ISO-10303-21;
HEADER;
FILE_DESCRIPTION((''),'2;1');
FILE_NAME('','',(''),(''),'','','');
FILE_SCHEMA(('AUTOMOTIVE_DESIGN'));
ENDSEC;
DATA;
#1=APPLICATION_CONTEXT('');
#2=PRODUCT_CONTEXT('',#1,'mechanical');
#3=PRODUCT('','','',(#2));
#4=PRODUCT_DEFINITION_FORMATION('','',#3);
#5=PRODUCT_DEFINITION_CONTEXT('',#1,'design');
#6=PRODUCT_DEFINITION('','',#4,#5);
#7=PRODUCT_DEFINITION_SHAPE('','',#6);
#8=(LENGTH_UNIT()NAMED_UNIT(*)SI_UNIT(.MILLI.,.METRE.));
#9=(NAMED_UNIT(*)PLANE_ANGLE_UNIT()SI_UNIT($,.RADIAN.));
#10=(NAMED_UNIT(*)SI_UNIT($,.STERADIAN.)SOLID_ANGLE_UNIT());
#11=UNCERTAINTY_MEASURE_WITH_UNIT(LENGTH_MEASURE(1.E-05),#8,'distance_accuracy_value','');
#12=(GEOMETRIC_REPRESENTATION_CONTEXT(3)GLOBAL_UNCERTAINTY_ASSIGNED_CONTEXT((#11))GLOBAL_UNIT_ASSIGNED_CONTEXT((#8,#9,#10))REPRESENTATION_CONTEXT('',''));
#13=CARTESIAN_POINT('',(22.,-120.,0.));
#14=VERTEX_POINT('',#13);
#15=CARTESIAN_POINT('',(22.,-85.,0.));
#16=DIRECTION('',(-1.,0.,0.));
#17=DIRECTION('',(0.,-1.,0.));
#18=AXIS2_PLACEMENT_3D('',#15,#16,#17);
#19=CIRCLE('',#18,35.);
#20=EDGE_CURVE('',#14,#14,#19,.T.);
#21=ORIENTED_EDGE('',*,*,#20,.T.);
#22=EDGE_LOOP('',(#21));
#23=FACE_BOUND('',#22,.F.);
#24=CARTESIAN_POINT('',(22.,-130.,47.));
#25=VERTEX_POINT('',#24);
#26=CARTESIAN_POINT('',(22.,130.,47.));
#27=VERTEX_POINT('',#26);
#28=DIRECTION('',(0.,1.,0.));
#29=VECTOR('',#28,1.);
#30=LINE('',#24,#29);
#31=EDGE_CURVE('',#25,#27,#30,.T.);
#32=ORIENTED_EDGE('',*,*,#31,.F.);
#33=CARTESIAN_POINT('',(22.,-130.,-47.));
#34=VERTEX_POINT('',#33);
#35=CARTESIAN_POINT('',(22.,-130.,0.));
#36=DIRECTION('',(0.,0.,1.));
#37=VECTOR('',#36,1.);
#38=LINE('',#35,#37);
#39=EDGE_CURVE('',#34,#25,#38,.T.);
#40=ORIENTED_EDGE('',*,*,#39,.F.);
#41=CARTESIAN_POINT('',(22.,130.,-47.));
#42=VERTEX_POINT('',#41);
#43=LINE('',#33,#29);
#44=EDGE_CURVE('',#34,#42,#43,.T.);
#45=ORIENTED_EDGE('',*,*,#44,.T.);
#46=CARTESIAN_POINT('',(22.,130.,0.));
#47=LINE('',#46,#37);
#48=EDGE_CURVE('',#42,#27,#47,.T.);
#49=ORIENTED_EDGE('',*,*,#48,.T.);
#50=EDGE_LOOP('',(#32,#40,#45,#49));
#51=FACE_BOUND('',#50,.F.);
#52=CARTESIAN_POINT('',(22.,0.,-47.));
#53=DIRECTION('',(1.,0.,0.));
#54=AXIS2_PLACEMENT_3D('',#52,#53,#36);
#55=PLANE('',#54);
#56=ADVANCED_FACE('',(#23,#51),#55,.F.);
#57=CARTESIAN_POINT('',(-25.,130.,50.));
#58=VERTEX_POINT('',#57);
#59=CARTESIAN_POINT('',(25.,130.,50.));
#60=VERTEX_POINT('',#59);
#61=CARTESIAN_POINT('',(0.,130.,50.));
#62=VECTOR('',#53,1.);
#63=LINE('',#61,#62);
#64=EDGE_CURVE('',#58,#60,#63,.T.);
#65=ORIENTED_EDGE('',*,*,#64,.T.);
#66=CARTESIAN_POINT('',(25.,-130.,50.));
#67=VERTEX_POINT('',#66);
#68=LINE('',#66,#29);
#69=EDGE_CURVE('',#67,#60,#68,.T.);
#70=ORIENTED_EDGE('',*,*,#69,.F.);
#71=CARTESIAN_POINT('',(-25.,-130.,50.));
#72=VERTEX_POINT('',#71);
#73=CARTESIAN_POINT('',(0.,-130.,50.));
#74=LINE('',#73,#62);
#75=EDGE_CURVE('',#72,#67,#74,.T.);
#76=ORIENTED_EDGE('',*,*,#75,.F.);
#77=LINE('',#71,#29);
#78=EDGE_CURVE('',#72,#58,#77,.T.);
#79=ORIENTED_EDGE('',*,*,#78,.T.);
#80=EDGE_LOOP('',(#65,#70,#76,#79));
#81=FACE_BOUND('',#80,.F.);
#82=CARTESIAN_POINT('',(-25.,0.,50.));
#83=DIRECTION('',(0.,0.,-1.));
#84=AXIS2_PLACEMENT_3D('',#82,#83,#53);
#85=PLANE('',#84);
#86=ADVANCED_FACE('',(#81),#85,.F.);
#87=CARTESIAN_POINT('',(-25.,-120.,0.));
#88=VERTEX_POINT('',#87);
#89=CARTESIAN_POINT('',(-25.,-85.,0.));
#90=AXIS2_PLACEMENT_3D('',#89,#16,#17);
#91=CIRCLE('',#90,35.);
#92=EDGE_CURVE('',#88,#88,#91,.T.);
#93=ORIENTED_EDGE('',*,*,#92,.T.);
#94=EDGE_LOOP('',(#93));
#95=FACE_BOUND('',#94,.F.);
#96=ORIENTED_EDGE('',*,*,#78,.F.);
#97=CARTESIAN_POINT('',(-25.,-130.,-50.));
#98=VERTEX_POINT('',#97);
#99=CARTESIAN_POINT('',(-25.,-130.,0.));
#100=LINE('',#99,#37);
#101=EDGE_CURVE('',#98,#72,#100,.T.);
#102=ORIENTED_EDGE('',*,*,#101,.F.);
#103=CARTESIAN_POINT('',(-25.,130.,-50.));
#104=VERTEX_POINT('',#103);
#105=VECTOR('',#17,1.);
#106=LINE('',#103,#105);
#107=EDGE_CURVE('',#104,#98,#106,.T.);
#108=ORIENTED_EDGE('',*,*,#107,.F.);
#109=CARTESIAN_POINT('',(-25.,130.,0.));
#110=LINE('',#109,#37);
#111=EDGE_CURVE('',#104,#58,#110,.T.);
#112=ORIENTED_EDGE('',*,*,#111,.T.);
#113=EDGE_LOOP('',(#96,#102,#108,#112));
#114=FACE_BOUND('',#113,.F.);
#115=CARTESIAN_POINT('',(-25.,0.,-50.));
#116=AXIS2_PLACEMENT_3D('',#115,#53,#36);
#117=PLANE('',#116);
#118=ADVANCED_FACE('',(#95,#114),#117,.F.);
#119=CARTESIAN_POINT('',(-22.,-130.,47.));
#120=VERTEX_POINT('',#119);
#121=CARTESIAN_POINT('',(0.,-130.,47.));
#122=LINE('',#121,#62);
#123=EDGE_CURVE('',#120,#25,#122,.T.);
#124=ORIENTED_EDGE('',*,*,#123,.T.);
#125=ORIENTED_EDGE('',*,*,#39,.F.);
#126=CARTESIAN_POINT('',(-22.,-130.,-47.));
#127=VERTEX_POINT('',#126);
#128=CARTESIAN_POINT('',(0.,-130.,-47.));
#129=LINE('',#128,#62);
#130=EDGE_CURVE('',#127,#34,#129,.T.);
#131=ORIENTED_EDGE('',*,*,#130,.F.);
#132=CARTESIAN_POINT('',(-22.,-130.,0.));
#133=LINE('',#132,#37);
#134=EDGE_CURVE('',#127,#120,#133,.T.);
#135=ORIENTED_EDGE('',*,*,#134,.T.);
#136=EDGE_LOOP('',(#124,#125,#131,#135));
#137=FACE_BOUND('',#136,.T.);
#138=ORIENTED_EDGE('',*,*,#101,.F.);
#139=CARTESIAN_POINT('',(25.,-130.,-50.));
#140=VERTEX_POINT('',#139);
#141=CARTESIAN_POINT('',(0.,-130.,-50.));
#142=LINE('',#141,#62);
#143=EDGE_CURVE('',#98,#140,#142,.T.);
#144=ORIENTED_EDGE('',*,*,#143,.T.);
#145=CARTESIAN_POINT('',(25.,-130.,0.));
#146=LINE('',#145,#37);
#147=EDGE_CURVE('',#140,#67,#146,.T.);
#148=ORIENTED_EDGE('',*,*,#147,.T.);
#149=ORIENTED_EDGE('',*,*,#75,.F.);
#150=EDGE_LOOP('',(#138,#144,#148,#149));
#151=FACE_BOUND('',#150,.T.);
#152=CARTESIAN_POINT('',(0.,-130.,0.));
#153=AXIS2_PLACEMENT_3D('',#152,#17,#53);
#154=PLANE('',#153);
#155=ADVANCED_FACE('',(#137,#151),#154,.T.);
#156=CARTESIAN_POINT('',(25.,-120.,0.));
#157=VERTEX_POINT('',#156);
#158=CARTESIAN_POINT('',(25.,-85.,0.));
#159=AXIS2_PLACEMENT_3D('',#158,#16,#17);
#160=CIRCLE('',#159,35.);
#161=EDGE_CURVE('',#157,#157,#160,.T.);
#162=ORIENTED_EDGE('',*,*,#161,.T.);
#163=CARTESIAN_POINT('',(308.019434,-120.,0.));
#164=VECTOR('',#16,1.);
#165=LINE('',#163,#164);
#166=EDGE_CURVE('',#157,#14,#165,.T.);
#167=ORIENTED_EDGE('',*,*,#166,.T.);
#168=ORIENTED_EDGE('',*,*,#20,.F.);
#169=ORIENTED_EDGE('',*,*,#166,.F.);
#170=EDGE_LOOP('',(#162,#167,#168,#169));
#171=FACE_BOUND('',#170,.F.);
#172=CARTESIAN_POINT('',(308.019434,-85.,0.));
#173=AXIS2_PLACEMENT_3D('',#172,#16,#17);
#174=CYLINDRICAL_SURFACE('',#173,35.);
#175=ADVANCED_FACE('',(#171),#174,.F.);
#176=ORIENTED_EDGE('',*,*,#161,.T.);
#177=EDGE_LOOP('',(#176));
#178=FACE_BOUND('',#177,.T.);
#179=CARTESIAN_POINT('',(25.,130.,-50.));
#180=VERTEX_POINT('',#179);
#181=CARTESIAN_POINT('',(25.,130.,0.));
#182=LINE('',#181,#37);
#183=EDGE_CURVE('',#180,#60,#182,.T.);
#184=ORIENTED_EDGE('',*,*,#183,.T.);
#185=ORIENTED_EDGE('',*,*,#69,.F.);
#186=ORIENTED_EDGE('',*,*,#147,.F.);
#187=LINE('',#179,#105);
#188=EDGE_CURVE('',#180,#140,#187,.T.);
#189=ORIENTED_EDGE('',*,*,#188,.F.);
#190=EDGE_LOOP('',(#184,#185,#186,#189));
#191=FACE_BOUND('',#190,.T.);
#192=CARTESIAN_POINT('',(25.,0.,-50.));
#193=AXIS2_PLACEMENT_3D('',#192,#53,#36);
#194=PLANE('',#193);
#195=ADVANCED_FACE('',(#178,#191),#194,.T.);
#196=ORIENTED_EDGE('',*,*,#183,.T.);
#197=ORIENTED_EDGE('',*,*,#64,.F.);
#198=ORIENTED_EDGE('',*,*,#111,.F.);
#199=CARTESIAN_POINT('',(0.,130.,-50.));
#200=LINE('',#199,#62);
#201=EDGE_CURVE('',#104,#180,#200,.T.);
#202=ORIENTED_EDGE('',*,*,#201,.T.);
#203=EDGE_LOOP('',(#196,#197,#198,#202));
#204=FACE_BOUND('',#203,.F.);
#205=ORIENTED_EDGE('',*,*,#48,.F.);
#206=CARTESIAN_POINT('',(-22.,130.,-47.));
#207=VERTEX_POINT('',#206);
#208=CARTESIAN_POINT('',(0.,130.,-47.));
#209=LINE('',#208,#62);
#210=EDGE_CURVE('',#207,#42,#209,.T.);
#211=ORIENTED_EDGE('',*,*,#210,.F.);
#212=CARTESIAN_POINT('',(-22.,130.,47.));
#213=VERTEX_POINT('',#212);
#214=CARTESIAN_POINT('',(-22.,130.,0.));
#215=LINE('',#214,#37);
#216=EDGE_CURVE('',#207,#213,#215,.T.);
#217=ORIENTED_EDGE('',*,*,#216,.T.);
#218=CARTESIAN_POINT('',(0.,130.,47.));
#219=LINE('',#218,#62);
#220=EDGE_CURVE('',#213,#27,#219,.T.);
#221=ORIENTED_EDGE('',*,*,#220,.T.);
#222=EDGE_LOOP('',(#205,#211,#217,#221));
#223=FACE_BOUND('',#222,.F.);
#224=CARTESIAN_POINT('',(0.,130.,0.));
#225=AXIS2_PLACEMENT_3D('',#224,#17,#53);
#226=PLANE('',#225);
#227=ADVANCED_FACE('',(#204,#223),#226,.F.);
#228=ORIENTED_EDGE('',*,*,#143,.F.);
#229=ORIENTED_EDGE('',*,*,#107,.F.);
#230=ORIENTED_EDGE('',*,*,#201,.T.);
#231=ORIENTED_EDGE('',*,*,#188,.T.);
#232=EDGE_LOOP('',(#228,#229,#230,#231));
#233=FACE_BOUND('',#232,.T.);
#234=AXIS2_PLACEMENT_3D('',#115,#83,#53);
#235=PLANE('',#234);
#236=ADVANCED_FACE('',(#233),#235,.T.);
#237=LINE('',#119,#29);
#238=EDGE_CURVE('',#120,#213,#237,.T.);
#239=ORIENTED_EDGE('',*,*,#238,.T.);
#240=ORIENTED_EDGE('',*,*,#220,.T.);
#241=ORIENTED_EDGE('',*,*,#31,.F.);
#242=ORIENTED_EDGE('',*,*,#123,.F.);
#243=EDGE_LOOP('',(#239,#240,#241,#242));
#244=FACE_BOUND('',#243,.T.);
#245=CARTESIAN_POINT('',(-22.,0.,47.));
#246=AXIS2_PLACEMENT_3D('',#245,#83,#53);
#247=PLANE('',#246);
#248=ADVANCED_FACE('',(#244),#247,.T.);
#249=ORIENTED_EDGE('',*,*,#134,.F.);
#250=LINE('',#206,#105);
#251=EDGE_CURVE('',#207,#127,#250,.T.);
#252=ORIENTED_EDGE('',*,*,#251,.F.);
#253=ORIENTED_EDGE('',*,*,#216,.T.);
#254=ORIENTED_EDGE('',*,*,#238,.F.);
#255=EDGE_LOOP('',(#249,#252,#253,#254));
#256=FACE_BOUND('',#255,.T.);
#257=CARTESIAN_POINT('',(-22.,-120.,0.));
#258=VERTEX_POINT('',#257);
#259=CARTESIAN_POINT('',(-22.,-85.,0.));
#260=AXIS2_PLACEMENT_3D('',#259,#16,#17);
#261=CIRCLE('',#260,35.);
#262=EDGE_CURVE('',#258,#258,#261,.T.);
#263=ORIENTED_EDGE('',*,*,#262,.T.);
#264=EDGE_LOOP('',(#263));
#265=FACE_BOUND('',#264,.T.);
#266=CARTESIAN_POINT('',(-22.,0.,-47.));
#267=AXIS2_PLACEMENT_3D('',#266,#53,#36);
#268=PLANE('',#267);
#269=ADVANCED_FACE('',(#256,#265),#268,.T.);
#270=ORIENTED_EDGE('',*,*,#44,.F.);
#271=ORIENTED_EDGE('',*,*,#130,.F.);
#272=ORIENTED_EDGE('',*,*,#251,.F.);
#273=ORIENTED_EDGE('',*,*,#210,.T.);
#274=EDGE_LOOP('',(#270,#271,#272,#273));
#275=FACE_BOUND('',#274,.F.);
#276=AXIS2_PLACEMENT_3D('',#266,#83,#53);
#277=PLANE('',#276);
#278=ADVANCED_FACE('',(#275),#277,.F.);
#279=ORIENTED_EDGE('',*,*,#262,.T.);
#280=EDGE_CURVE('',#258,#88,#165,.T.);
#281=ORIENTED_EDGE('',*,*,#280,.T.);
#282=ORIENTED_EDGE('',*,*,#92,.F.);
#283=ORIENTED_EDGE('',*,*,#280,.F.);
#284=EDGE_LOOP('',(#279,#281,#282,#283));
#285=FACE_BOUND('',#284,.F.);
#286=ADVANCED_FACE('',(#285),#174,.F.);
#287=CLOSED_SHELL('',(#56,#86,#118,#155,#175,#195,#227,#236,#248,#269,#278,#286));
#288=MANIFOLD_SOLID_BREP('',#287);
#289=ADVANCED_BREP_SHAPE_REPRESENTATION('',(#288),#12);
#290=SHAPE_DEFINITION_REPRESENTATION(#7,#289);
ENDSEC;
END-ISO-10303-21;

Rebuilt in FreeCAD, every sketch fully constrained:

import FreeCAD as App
import Part
import Sketcher
from FreeCAD import Vector

doc = App.newDocument("Part")
body = doc.addObject("PartDesign::Body", "Body")

sketch1 = body.newObject("Sketcher::SketchObject", "Sketch")
sketch1.AttachmentSupport = (doc.getObject("XZ_Plane"), [""])
sketch1.MapMode = "FlatFace"
sketch1.addGeometry(Part.LineSegment(Vector(-25, 50, 0), Vector(-25, -50, 0)), False)
sketch1.addGeometry(Part.LineSegment(Vector(-25, -50, 0), Vector(25, -50, 0)), False)
sketch1.addGeometry(Part.LineSegment(Vector(25, -50, 0), Vector(25, 50, 0)), False)
sketch1.addGeometry(Part.LineSegment(Vector(25, 50, 0), Vector(-25, 50, 0)), False)
sketch1.addGeometry(Part.LineSegment(Vector(22, -47, 0), Vector(-22, -47, 0)), False)
sketch1.addGeometry(Part.LineSegment(Vector(-22, -47, 0), Vector(-22, 47, 0)), False)
sketch1.addGeometry(Part.LineSegment(Vector(-22, 47, 0), Vector(22, 47, 0)), False)
sketch1.addGeometry(Part.LineSegment(Vector(22, 47, 0), Vector(22, -47, 0)), False)
sketch1.addConstraint(Sketcher.Constraint("Coincident", 0, 2, 1, 1))
sketch1.addConstraint(Sketcher.Constraint("Coincident", 1, 2, 2, 1))
sketch1.addConstraint(Sketcher.Constraint("Coincident", 2, 2, 3, 1))
sketch1.addConstraint(Sketcher.Constraint("Coincident", 3, 2, 0, 1))
sketch1.addConstraint(Sketcher.Constraint("Coincident", 4, 2, 5, 1))
sketch1.addConstraint(Sketcher.Constraint("Coincident", 5, 2, 6, 1))
sketch1.addConstraint(Sketcher.Constraint("Coincident", 6, 2, 7, 1))
sketch1.addConstraint(Sketcher.Constraint("Coincident", 7, 2, 4, 1))
sketch1.addConstraint(Sketcher.Constraint("Vertical", 0))
sketch1.addConstraint(Sketcher.Constraint("Horizontal", 1))
sketch1.addConstraint(Sketcher.Constraint("Vertical", 2))
sketch1.addConstraint(Sketcher.Constraint("Horizontal", 3))
sketch1.addConstraint(Sketcher.Constraint("Horizontal", 4))
sketch1.addConstraint(Sketcher.Constraint("Vertical", 5))
sketch1.addConstraint(Sketcher.Constraint("Horizontal", 6))
sketch1.addConstraint(Sketcher.Constraint("Vertical", 7))
sketch1.addConstraint(Sketcher.Constraint("Symmetric", 0, 2, 2, 2, -1, 1))
sketch1.addConstraint(Sketcher.Constraint("Symmetric", 4, 2, 6, 2, -1, 1))
sketch1.addConstraint(Sketcher.Constraint("DistanceX", 1, 1, 1, 2, 50.0))
sketch1.addConstraint(Sketcher.Constraint("DistanceX", 4, 2, 4, 1, 44.0))
sketch1.addConstraint(Sketcher.Constraint("DistanceY", 0, 2, 0, 1, 100.0))
sketch1.addConstraint(Sketcher.Constraint("DistanceY", 5, 1, 5, 2, 94.0))
pad1 = body.newObject("PartDesign::Pad", "Pad")
pad1.Profile = sketch1
pad1.Length = 260
pad1.Midplane = True

sketch2 = body.newObject("Sketcher::SketchObject", "Sketch001")
sketch2.AttachmentSupport = (doc.getObject("YZ_Plane"), [""])
sketch2.MapMode = "FlatFace"
sketch2.AttachmentOffset = App.Placement(Vector(0, 0, 25), App.Rotation())
sketch2.addGeometry(Part.Circle(Vector(-85, 0, 0), Vector(0, 0, 1), 35), False)
sketch2.addConstraint(Sketcher.Constraint("PointOnObject", 0, 3, -1))
sketch2.addConstraint(Sketcher.Constraint("Diameter", 0, 70.0))
sketch2.addConstraint(Sketcher.Constraint("DistanceX", 0, 3, -1, 1, 85.0))
doc.recompute()
hole = body.newObject("PartDesign::Hole", "Hole")
hole.Profile = sketch2
hole.ThreadType = "None"
hole.Diameter = 70
hole.DepthType = "ThroughAll"

doc.recompute()
